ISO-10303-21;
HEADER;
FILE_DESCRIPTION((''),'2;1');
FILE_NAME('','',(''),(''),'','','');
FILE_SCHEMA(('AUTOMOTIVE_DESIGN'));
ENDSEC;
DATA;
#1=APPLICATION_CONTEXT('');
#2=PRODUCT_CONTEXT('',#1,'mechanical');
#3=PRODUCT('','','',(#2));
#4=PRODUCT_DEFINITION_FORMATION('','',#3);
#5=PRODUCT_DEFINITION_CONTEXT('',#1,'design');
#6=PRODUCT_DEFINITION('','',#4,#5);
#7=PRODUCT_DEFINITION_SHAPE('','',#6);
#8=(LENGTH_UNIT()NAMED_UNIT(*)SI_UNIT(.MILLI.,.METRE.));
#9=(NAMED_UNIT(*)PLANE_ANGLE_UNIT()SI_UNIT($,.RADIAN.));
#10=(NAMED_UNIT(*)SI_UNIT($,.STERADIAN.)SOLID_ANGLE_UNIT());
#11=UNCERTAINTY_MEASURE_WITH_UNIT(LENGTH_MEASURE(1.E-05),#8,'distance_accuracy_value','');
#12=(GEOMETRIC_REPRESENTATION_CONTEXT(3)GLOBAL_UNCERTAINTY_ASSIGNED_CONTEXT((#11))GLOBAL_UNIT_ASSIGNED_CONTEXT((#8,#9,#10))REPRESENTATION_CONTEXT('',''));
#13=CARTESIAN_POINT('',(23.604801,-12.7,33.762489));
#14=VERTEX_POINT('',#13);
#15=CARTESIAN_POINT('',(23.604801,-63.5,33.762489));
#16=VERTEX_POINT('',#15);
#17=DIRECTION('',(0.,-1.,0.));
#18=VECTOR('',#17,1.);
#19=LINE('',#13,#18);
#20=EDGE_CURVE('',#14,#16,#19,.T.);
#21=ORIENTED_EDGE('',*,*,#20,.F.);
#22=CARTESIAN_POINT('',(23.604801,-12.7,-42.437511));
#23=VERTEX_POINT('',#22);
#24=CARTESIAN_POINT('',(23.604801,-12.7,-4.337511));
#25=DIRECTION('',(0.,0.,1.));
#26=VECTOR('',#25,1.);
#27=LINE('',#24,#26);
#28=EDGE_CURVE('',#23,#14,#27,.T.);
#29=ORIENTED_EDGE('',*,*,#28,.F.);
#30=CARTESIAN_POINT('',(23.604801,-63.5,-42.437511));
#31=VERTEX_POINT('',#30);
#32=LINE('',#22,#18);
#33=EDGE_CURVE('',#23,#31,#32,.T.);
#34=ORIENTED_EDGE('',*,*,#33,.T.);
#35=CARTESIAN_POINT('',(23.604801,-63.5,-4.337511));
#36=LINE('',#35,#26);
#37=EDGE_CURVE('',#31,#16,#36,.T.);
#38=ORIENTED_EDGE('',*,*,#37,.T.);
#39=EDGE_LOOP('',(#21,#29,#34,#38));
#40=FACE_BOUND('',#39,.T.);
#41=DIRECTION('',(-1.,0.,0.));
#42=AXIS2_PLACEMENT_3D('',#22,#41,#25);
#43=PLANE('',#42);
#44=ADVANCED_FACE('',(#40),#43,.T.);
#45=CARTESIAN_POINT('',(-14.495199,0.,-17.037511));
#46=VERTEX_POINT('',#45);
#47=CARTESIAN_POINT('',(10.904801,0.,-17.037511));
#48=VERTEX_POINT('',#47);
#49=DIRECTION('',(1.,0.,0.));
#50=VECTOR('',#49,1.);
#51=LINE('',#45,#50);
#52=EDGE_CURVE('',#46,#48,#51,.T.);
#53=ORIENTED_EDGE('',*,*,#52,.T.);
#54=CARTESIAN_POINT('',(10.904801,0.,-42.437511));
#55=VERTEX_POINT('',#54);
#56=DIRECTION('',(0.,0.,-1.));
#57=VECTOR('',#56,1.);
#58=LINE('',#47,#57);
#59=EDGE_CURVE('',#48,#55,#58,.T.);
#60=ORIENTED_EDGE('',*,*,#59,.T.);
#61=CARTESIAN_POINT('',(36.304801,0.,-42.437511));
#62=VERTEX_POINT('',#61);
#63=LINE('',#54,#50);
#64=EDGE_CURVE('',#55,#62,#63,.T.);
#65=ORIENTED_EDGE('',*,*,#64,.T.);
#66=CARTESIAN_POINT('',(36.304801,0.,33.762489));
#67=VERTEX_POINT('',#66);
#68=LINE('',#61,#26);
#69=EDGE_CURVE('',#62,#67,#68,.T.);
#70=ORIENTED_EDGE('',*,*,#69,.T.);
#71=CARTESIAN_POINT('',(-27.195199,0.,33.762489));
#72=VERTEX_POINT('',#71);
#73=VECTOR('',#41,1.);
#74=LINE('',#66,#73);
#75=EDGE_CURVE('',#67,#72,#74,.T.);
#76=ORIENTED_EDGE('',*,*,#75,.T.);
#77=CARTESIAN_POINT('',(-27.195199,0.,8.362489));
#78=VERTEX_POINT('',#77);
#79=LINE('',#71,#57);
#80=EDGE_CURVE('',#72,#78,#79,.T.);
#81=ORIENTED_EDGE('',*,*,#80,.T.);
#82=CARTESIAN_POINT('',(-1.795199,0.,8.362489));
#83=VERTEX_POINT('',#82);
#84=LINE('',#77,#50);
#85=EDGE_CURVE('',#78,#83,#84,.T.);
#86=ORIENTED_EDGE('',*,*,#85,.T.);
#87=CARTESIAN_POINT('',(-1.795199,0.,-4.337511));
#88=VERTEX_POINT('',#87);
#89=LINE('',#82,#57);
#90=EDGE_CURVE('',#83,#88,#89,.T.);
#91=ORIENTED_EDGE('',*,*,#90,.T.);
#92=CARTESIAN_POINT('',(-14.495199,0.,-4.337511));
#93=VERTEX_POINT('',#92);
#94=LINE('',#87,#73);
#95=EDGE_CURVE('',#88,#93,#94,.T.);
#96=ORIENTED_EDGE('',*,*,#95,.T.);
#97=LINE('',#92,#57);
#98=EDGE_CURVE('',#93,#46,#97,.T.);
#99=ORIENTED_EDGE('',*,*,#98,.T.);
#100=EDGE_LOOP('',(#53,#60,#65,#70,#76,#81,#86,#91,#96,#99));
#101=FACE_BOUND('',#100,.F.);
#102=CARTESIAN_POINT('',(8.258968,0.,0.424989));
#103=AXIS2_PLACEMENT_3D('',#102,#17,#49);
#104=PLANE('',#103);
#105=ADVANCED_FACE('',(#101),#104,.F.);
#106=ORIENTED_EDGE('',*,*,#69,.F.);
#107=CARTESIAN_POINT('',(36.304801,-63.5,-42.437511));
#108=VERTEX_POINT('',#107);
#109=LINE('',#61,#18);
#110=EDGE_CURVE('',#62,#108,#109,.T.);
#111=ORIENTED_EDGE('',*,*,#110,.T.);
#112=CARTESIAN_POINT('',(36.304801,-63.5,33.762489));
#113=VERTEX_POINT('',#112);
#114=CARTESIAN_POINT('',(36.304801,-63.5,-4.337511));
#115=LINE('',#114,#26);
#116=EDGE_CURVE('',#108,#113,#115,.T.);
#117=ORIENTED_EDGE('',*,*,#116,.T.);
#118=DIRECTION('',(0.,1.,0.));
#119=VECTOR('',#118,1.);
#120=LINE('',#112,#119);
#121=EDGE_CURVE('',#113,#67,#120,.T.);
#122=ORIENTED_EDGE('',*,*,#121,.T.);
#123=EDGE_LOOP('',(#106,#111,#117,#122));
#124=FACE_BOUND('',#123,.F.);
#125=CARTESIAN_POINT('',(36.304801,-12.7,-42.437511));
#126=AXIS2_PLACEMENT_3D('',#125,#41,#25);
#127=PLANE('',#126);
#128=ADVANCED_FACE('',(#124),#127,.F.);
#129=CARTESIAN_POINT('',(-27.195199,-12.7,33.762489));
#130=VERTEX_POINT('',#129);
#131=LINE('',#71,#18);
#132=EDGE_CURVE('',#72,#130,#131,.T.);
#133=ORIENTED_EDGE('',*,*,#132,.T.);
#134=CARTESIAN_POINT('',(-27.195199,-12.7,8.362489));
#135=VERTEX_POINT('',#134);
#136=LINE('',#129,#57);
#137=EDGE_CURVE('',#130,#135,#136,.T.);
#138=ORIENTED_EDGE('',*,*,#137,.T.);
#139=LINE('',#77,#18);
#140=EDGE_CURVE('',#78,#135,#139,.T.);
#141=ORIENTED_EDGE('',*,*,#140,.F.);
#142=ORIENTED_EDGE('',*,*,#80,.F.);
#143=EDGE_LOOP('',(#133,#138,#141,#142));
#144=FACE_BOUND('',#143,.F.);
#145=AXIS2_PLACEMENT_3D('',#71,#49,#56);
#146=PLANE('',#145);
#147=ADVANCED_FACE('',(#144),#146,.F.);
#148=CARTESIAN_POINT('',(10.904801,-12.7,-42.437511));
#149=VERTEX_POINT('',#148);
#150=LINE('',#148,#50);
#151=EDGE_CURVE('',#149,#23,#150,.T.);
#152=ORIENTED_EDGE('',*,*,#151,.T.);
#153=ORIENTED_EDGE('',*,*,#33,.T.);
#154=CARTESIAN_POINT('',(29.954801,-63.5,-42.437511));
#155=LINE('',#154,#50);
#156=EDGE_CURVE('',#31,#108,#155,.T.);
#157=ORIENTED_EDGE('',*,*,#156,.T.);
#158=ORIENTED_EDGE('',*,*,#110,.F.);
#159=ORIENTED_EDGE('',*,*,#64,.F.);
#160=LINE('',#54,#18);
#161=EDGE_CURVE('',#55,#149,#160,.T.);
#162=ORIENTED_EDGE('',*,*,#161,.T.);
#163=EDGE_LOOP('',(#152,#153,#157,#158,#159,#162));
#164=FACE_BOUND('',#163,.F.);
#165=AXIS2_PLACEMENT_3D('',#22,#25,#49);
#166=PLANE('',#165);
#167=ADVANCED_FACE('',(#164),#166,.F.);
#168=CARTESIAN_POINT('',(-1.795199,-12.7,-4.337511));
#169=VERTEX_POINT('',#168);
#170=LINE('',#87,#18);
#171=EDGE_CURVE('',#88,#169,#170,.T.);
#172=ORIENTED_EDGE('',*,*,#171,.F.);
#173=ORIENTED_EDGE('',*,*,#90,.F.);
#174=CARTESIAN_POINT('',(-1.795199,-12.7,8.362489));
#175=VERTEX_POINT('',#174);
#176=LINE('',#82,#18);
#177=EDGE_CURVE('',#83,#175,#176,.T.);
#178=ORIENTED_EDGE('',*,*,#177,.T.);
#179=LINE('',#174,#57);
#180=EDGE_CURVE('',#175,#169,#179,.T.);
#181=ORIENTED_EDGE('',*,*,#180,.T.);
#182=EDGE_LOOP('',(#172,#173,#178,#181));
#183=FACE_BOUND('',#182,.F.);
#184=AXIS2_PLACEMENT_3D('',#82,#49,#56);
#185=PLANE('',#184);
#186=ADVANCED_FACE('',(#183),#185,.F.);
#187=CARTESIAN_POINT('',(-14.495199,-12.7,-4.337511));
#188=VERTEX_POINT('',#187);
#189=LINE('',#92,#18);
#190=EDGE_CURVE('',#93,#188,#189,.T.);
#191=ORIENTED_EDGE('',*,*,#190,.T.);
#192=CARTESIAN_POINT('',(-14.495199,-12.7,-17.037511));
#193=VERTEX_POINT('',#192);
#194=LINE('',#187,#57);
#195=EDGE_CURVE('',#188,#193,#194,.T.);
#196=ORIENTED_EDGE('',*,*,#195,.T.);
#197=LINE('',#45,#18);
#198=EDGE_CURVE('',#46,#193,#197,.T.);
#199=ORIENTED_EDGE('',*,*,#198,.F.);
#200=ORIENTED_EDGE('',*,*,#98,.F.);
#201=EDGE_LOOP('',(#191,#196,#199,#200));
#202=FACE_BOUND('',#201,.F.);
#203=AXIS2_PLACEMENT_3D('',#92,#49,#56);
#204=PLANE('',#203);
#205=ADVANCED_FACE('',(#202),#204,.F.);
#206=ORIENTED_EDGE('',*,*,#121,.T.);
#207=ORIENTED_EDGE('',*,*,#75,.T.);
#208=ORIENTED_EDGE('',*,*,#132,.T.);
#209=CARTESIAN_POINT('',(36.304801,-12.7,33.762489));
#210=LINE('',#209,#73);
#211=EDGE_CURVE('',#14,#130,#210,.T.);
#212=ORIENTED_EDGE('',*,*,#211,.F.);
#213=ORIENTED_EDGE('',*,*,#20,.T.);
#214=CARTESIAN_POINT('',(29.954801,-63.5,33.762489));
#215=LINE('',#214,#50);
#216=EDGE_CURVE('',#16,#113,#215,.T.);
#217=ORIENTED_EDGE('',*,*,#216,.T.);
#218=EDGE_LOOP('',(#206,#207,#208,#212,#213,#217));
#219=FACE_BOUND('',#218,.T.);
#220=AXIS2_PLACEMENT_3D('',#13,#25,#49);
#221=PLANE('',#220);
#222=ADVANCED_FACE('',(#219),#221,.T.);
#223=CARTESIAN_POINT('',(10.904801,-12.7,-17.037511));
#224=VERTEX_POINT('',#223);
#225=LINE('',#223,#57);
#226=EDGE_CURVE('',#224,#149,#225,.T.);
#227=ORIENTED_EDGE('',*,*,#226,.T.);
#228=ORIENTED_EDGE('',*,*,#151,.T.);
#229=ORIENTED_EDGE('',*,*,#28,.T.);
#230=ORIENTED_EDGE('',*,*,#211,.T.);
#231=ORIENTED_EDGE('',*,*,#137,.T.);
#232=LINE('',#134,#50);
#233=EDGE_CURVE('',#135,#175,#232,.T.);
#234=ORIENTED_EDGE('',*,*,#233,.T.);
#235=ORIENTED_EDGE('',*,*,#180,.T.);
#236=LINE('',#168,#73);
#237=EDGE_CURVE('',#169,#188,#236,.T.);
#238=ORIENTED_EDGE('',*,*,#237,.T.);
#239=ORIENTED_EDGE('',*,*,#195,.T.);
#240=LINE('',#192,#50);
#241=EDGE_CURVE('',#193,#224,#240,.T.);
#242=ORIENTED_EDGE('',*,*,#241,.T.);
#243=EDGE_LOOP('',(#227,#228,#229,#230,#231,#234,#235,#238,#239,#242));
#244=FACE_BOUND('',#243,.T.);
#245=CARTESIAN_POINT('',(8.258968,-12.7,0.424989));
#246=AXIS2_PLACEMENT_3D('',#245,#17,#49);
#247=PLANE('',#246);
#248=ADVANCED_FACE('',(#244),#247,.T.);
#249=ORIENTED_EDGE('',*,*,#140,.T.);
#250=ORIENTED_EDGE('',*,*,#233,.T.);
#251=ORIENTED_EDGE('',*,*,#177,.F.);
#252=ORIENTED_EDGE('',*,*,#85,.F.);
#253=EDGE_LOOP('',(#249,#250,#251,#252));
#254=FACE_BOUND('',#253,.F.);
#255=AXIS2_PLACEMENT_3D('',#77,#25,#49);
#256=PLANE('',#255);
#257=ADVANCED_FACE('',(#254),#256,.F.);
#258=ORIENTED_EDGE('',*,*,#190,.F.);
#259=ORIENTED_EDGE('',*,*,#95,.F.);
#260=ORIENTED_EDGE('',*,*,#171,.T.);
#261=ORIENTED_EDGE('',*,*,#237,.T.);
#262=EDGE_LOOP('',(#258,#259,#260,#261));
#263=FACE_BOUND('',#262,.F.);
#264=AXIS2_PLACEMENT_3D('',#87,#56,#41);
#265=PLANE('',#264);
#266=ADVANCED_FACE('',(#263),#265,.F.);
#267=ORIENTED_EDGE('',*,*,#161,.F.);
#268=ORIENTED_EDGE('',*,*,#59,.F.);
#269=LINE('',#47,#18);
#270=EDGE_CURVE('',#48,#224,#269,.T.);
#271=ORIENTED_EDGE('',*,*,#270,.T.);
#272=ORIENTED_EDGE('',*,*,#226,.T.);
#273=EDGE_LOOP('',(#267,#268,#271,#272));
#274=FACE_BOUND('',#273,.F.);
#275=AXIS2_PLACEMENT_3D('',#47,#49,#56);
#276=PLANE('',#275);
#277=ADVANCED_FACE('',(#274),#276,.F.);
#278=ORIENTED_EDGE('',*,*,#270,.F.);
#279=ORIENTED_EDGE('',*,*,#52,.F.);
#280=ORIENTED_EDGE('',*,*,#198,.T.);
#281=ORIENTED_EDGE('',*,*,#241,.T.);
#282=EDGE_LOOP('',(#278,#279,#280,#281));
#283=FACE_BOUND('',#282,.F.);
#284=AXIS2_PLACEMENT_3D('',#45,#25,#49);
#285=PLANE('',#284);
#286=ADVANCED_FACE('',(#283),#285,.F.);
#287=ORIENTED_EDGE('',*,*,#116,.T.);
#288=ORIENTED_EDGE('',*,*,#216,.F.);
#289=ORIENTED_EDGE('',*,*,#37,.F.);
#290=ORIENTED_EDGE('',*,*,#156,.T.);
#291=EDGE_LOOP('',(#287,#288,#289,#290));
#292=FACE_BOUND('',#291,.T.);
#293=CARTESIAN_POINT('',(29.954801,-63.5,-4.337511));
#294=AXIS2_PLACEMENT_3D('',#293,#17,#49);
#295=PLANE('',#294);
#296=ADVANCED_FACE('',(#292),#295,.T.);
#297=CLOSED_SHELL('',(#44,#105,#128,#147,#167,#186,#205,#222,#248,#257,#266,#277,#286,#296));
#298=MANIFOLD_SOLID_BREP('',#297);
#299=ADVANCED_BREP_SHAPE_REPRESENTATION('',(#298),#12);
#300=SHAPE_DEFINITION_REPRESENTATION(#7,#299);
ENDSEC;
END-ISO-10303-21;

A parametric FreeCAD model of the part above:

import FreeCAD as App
import Part
import Sketcher
from FreeCAD import Vector
Q = App.Units.Quantity


def add_polygon(sketch, points):
    """Adds a closed chain of lines whose ends are joined by coincident constraints."""
    first, n = sketch.GeometryCount, len(points)
    for a, b in zip(points, points[1:] + points[:1]):
        sketch.addGeometry(Part.LineSegment(App.Vector(*a, 0), App.Vector(*b, 0)), False)
    for i in range(n):
        sketch.addConstraint(Sketcher.Constraint("Coincident", first + i, 2, first + (i + 1) % n, 1))

doc = App.newDocument("Part")
params = doc.addObject("Spreadsheet::Sheet", "Params")
for row, (alias, value) in enumerate([
    ("sketch1_width", "1 in"),
    ("sketch1_height", "3 in"),
    ("pad1_length", "0.5 in"),
    ("sketch2_height", "3 in"),
    ("sketch2_width", "0.5 in"),
    ("pad2_length", "2 in"),
], start=1):
    params.set(f"A{row}", alias)
    params.set(f"B{row}", "=" + value)
    params.setAlias(f"B{row}", alias)

body = doc.addObject("PartDesign::Body", "Body")

# Sketch on XZ plane
sketch1 = doc.addObject("Sketcher::SketchObject", "Sketch")
body.addObject(sketch1)
sketch1.AttachmentSupport = (doc.XZ_Plane, [""])
sketch1.MapMode = "FlatFace"
add_polygon(sketch1, [(36, 34), (-27, 34), (-27, 8), (-2, 8), (-2, -4), (-14, -4), (-14, -17), (11, -17), (11, -42), (36, -42)])  # lines 0-9
sketch1.addConstraint(Sketcher.Constraint("Horizontal", 0))
sketch1.addConstraint(Sketcher.Constraint("Vertical", 1))
sketch1.addConstraint(Sketcher.Constraint("Horizontal", 2))
sketch1.addConstraint(Sketcher.Constraint("Vertical", 3))
sketch1.addConstraint(Sketcher.Constraint("Horizontal", 4))
sketch1.addConstraint(Sketcher.Constraint("Vertical", 5))
sketch1.addConstraint(Sketcher.Constraint("Horizontal", 6))
sketch1.addConstraint(Sketcher.Constraint("Vertical", 7))
sketch1.addConstraint(Sketcher.Constraint("Horizontal", 8))
sketch1.addConstraint(Sketcher.Constraint("Vertical", 9))
sketch1.addConstraint(Sketcher.Constraint("Equal", 2, 6))
sketch1.addConstraint(Sketcher.Constraint("Equal", 6, 8))
sketch1.addConstraint(Sketcher.Constraint("Equal", 8, 1))
sketch1.addConstraint(Sketcher.Constraint("Equal", 4, 3))
sketch1.addConstraint(Sketcher.Constraint("Equal", 3, 5))
sketch1.addConstraint(Sketcher.Constraint("Equal", 1, 7))
sketch1.addConstraint(Sketcher.Constraint("DistanceX", 2, 1, 2, 2, Q("1 in")))
sketch1.addConstraint(Sketcher.Constraint("DistanceY", 9, 1, 9, 2, Q("3 in")))
sketch1.addConstraint(Sketcher.Constraint("DistanceX", 0, 2, -1, 1, Q("27.195199 mm")))
sketch1.addConstraint(Sketcher.Constraint("DistanceY", -1, 1, 0, 2, Q("33.762489 mm")))
sketch1.setExpression("Constraints[26]", "Params.sketch1_width")
sketch1.setExpression("Constraints[27]", "Params.sketch1_height")
pad1 = doc.addObject("PartDesign::Pad", "Pad")
body.addObject(pad1)
pad1.Profile = sketch1
pad1.setExpression("Length", "Params.pad1_length")

# Sketch on XZ plane
sketch2 = doc.addObject("Sketcher::SketchObject", "Sketch001")
body.addObject(sketch2)
sketch2.AttachmentSupport = (doc.XZ_Plane, [""])
sketch2.MapMode = "FlatFace"
sketch2.AttachmentOffset = App.Placement(Vector(0, 0, 0.5 * 25.4), App.Rotation())
add_polygon(sketch2, [(24, 34), (24, -42), (36, -42), (36, 34)])  # lines 0-3
sketch2.addConstraint(Sketcher.Constraint("Vertical", 0))
sketch2.addConstraint(Sketcher.Constraint("Horizontal", 1))
sketch2.addConstraint(Sketcher.Constraint("Vertical", 2))
sketch2.addConstraint(Sketcher.Constraint("Horizontal", 3))
sketch2.addConstraint(Sketcher.Constraint("DistanceY", 0, 2, 0, 1, Q("3 in")))
sketch2.addConstraint(Sketcher.Constraint("DistanceX", 1, 1, 1, 2, Q("0.5 in")))
sketch2.addConstraint(Sketcher.Constraint("DistanceX", -1, 1, 0, 2, Q("23.604801 mm")))
sketch2.addConstraint(Sketcher.Constraint("DistanceY", 0, 2, -1, 1, Q("42.437511 mm")))
sketch2.setExpression("Constraints[8]", "Params.sketch2_height")
sketch2.setExpression("Constraints[9]", "Params.sketch2_width")
pad2 = doc.addObject("PartDesign::Pad", "Pad001")
body.addObject(pad2)
pad2.Profile = sketch2
pad2.setExpression("Length", "Params.pad2_length")

doc.recompute()
